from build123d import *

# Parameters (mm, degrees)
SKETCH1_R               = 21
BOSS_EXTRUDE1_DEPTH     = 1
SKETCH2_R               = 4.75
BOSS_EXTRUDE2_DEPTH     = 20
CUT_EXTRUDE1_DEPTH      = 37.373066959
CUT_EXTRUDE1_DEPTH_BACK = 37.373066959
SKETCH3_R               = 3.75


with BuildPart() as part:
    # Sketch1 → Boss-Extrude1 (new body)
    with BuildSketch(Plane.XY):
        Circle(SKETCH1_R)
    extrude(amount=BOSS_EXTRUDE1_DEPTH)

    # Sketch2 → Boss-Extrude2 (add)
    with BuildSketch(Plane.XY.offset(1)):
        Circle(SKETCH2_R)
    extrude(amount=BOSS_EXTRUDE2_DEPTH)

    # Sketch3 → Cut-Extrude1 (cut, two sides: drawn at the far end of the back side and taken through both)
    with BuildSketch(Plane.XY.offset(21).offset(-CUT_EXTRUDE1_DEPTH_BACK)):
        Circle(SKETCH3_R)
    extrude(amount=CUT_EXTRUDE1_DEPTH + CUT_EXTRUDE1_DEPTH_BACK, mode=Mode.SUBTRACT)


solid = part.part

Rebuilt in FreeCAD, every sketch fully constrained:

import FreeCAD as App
import Part
import Sketcher
from FreeCAD import Vector

doc = App.newDocument("Part")
body = doc.addObject("PartDesign::Body", "Body")

sketch1 = body.newObject("Sketcher::SketchObject", "Sketch")
sketch1.AttachmentSupport = (doc.getObject("XY_Plane"), [""])
sketch1.MapMode = "FlatFace"
sketch1.addGeometry(Part.Circle(Vector(0, 0, 0), Vector(0, 0, 1), 21), False)
sketch1.addConstraint([
    Sketcher.Constraint("Coincident", 0, 3, -1, 1),
    Sketcher.Constraint("Diameter", 0, 42.0),
])
pad1 = body.newObject("PartDesign::Pad", "Pad")
pad1.Profile = sketch1
pad1.Length = 1

sketch2 = body.newObject("Sketcher::SketchObject", "Sketch001")
sketch2.AttachmentSupport = (doc.getObject("XY_Plane"), [""])
sketch2.MapMode = "FlatFace"
sketch2.AttachmentOffset = App.Placement(Vector(0, 0, 1), App.Rotation())
sketch2.addGeometry(Part.Circle(Vector(0, 0, 0), Vector(0, 0, 1), 4.8), False)
sketch2.addConstraint([
    Sketcher.Constraint("Coincident", 0, 3, -1, 1),
    Sketcher.Constraint("Diameter", 0, 9.5),
])
pad2 = body.newObject("PartDesign::Pad", "Pad001")
pad2.Profile = sketch2
pad2.Length = 20

sketch3 = body.newObject("Sketcher::SketchObject", "Sketch002")
sketch3.AttachmentSupport = (doc.getObject("XY_Plane"), [""])
sketch3.MapMode = "FlatFace"
sketch3.AttachmentOffset = App.Placement(Vector(0, 0, 21), App.Rotation())
sketch3.addGeometry(Part.Circle(Vector(0, 0, 0), Vector(0, 0, 1), 3.8), False)
sketch3.addConstraint([
    Sketcher.Constraint("Coincident", 0, 3, -1, 1),
    Sketcher.Constraint("Diameter", 0, 7.5),
])
pocket1 = body.newObject("PartDesign::Pocket", "Pocket")
pocket1.Profile = sketch3
pocket1.Type = "ThroughAll"
pocket1.Midplane = True

doc.recompute()
